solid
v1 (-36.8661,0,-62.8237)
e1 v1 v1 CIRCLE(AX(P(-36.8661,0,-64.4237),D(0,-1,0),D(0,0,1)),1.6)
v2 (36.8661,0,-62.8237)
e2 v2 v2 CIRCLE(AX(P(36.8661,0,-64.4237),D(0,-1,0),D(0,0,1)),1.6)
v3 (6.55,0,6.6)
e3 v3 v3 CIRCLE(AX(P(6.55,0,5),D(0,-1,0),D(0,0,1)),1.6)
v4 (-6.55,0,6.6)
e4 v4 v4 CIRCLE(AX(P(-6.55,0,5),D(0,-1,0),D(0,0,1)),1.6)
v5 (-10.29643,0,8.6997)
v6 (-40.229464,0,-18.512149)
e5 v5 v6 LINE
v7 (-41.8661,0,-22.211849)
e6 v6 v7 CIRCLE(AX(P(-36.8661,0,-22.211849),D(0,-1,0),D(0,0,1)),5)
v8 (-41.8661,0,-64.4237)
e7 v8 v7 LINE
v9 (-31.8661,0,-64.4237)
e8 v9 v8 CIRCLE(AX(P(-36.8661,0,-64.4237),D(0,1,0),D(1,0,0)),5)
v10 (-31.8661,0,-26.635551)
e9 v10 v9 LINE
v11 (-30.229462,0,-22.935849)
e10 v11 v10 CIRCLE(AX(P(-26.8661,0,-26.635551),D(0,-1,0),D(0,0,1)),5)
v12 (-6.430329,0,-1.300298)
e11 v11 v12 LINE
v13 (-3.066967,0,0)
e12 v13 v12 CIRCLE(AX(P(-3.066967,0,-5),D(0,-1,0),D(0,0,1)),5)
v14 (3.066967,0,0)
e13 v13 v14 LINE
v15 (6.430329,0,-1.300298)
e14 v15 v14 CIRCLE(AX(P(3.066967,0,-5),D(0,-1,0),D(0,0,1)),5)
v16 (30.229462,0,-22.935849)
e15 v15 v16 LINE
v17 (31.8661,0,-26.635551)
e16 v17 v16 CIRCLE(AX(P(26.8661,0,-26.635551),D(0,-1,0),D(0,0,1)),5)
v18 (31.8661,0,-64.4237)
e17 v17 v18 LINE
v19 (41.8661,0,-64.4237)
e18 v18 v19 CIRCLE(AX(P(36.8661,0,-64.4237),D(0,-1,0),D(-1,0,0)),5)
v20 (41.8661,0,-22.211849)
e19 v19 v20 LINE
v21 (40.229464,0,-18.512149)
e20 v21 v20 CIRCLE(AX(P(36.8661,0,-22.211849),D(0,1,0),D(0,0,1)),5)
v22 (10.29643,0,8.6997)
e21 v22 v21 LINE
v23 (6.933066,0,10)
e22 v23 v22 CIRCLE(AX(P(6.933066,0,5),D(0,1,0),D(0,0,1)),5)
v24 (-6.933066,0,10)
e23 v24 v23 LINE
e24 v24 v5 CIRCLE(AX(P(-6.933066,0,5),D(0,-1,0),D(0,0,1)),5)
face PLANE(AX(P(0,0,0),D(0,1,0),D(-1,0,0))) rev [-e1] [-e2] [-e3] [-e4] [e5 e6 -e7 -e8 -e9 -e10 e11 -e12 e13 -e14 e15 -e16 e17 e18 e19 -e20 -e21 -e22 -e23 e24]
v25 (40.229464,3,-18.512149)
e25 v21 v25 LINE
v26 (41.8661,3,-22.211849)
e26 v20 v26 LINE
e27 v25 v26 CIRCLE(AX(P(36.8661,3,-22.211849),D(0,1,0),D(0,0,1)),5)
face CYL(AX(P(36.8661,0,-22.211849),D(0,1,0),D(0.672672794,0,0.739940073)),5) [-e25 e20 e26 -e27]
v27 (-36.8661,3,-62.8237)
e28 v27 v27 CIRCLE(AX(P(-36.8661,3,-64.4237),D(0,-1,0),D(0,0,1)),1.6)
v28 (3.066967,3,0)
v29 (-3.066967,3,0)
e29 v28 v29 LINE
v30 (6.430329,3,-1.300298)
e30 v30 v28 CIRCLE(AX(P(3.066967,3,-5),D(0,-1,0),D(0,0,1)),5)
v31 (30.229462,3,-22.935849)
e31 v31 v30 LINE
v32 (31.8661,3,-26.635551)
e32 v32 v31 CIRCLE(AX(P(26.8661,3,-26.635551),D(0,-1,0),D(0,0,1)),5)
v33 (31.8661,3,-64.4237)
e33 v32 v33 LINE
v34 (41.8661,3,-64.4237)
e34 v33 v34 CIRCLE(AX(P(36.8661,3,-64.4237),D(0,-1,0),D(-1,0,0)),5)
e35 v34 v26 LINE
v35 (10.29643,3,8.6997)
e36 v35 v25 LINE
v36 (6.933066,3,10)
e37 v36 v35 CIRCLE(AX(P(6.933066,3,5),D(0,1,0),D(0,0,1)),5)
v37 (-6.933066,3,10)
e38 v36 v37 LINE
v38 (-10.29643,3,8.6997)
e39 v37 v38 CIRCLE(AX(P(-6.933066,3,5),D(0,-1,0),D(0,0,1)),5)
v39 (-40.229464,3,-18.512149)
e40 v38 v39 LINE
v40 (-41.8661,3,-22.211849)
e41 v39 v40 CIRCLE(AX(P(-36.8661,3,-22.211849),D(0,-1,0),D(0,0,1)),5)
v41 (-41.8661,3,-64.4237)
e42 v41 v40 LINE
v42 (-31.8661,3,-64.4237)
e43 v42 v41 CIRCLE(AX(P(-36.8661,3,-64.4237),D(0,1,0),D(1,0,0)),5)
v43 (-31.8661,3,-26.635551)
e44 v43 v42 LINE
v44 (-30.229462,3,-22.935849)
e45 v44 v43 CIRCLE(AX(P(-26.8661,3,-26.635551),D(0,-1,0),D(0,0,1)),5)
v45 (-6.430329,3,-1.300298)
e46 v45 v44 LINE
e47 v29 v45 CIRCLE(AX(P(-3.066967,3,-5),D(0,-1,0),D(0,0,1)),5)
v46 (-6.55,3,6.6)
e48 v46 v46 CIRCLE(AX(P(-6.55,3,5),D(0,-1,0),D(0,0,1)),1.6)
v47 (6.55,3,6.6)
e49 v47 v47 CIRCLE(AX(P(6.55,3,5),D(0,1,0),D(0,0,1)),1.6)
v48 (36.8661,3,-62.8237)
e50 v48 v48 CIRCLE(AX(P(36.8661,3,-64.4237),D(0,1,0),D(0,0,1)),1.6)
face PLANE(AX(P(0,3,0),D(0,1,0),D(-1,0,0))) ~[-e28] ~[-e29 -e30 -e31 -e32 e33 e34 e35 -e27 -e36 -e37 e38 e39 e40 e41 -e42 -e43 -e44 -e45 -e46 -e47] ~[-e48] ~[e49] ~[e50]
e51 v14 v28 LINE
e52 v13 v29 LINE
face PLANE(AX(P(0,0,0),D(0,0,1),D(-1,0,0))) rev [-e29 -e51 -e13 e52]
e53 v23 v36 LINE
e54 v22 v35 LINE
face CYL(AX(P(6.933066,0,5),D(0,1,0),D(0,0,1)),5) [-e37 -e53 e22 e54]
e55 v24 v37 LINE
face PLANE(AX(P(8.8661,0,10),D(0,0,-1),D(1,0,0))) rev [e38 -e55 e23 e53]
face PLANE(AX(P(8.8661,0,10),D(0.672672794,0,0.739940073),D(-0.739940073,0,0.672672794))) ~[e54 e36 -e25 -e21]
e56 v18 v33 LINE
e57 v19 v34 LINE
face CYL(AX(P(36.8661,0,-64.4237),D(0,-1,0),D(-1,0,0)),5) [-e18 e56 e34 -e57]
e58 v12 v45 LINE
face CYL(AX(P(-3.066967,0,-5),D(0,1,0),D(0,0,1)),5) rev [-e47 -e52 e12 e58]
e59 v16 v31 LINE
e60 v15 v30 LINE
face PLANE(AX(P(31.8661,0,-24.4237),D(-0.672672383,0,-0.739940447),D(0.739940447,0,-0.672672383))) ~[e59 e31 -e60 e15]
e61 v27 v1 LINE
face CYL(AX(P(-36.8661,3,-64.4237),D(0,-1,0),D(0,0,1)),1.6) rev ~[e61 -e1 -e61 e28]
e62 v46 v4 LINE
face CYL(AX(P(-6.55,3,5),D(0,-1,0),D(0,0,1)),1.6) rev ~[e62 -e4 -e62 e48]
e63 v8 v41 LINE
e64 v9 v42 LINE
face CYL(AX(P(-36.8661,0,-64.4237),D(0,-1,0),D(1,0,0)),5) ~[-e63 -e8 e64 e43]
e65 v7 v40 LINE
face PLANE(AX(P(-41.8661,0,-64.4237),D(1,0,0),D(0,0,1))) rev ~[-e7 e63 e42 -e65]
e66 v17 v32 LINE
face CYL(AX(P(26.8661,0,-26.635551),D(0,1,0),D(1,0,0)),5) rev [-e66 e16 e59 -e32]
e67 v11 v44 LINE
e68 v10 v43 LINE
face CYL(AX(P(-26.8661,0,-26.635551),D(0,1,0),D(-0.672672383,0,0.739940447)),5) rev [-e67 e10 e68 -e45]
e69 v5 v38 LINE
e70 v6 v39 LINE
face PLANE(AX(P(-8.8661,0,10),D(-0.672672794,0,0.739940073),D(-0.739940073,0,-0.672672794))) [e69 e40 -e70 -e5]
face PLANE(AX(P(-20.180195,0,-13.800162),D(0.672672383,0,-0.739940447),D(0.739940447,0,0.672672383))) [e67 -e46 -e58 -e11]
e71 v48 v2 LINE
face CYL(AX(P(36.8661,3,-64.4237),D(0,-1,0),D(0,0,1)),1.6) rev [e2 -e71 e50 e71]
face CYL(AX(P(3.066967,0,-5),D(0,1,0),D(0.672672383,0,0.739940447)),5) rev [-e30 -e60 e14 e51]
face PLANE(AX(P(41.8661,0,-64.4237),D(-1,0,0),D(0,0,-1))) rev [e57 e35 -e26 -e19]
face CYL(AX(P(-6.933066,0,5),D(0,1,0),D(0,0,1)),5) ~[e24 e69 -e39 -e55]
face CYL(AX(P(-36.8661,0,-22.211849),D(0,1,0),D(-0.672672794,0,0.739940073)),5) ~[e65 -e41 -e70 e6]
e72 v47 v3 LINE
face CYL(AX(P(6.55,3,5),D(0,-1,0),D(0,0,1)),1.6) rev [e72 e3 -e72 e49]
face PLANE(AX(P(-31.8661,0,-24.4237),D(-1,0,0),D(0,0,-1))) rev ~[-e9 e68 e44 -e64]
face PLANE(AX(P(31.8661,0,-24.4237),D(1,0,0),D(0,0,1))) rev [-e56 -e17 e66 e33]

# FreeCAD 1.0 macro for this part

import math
import FreeCAD as App
import Part
import Sketcher

V = App.Vector
Q = App.Units.Quantity


def edges_at(feature, points):
    """Names of the edges that pass closest to the given points."""
    edges = feature.Shape.Edges
    near = lambda p: min(range(len(edges)), key=lambda i: edges[i].distToShape(Part.Vertex(*p))[0])
    return sorted({f"Edge{near(p) + 1}" for p in points})

doc = App.newDocument("Part")
params = doc.addObject("Spreadsheet::Sheet", "Params")
for row, (alias, value) in enumerate([
    ("sketch1_radius", "5 mm"),
    ("sketch1_width", "5 mm"),
    ("sketch1_height", "10 mm"),
    ("sketch1_height2", "40 mm"),
    ("pad1_length", "3 mm"),
    ("sketch2_diameter", "3.2 mm"),
    ("hole_diameter", "3.2 mm"),
    ("fillet_radius", "5 mm"),
], start=1):
    params.set(f"A{row}", alias)
    params.set(f"B{row}", "=" + value)
    params.setAlias(f"B{row}", alias)

body = doc.addObject("PartDesign::Body", "Body")

sketch1 = doc.addObject("Sketcher::SketchObject", "Sketch")
body.addObject(sketch1)
sketch1.AttachmentSupport = (doc.XZ_Plane, [""])
sketch1.MapMode = "FlatFace"
sketch1.addGeometry(Part.LineSegment(V(0, 10, 0), V(0, 0, 0)), False)
sketch1.addGeometry(Part.LineSegment(V(0, 0, 0), V(-5, 0, 0)), False)
sketch1.addGeometry(Part.LineSegment(V(-5, 0, 0), V(-32, -24, 0)), False)
sketch1.addGeometry(Part.LineSegment(V(-32, -24, 0), V(-32, -64, 0)), False)
sketch1.addGeometry(Part.ArcOfCircle(Part.Circle(V(-37, -64, 0), V(0, 0, 1), 5), math.radians(180), math.radians(360)), False)
sketch1.addGeometry(Part.LineSegment(V(-42, -64, 0), V(-42, -20, 0)), False)
sketch1.addGeometry(Part.LineSegment(V(-42, -20, 0), V(-9, 10, 0)), False)
sketch1.addGeometry(Part.LineSegment(V(-9, 10, 0), V(0, 10, 0)), False)
sketch1.addConstraint(Sketcher.Constraint("Coincident", 0, 2, 1, 1))
sketch1.addConstraint(Sketcher.Constraint("Coincident", 1, 2, 2, 1))
sketch1.addConstraint(Sketcher.Constraint("Coincident", 2, 2, 3, 1))
sketch1.addConstraint(Sketcher.Constraint("Tangent", 3, 2, 4, 2))
sketch1.addConstraint(Sketcher.Constraint("Tangent", 4, 1, 5, 1))
sketch1.addConstraint(Sketcher.Constraint("Coincident", 5, 2, 6, 1))
sketch1.addConstraint(Sketcher.Constraint("Coincident", 6, 2, 7, 1))
sketch1.addConstraint(Sketcher.Constraint("Coincident", 7, 2, 0, 1))
sketch1.addConstraint(Sketcher.Constraint("Vertical", 0))
sketch1.addConstraint(Sketcher.Constraint("Horizontal", 1))
sketch1.addConstraint(Sketcher.Constraint("Vertical", 3))
sketch1.addConstraint(Sketcher.Constraint("Vertical", 5))
sketch1.addConstraint(Sketcher.Constraint("Horizontal", 7))
sketch1.addConstraint(Sketcher.Constraint("Coincident", 0, 2, -1, 1))
sketch1.addConstraint(Sketcher.Constraint("Parallel", 2, 6))
sketch1.addConstraint(Sketcher.Constraint("Radius", 4, Q("5 mm")))
sketch1.addConstraint(Sketcher.Constraint("DistanceX", 1, 2, 1, 1, Q("5 mm")))
sketch1.addConstraint(Sketcher.Constraint("DistanceY", 0, 2, 0, 1, Q("10 mm")))
sketch1.addConstraint(Sketcher.Constraint("DistanceY", 3, 2, 3, 1, Q("40 mm")))
sketch1.addConstraint(Sketcher.Constraint("DistanceX", 5, 2, 6, 2, Q("33 mm")))
sketch1.addConstraint(Sketcher.Constraint("DistanceY", 5, 2, 6, 2, Q("30 mm")))
sketch1.addConstraint(Sketcher.Constraint("DistanceX", 7, 1, 7, 2, Q("8.866 mm")))
sketch1.setExpression("Constraints[15]", "Params.sketch1_radius")
sketch1.setExpression("Constraints[16]", "Params.sketch1_width")
sketch1.setExpression("Constraints[17]", "Params.sketch1_height")
sketch1.setExpression("Constraints[18]", "Params.sketch1_height2")
pad1 = doc.addObject("PartDesign::Pad", "Pad")
body.addObject(pad1)
pad1.Profile = sketch1
pad1.setExpression("Length", "Params.pad1_length")
pad1.Reversed = True

sketch2 = doc.addObject("Sketcher::SketchObject", "Sketch001")
body.addObject(sketch2)
sketch2.AttachmentSupport = (doc.XZ_Plane, [""])
sketch2.MapMode = "FlatFace"
sketch2.AttachmentOffset = App.Placement(V(0, 0, -3), App.Rotation())
sketch2.addGeometry(Part.Circle(V(-6.5, 5, 0), V(0, 0, 1), 1.6), False)
sketch2.addGeometry(Part.Circle(V(-36.9, -64.4, 0), V(0, 0, 1), 1.6), False)
sketch2.addConstraint(Sketcher.Constraint("Equal", 0, 1))
sketch2.addConstraint(Sketcher.Constraint("Diameter", 0, Q("3.2 mm")))
sketch2.addConstraint(Sketcher.Constraint("DistanceY", -1, 1, 0, 3, Q("5 mm")))
sketch2.addConstraint(Sketcher.Constraint("DistanceX", 0, 3, -1, 1, Q("6.55 mm")))
sketch2.addConstraint(Sketcher.Constraint("DistanceX", 1, 3, -1, 1, Q("36.866 mm")))
sketch2.addConstraint(Sketcher.Constraint("DistanceY", 1, 3, -1, 1, Q("64.4237 mm")))
sketch2.setExpression("Constraints[1]", "Params.sketch2_diameter")
doc.recompute()
hole = doc.addObject("PartDesign::Hole", "Hole")
body.addObject(hole)
hole.Profile = sketch2
hole.ThreadType = "None"
hole.setExpression("Diameter", "Params.hole_diameter")
hole.DepthType = "ThroughAll"
hole.Reversed = True
doc.recompute()

fillet = doc.addObject("PartDesign::Fillet", "Fillet")
body.addObject(fillet)
fillet.Base = (hole, edges_at(hole, [
    (-8.866, 1.5, 10),
    (-41.866, 1.5, -20),
    (-31.866, 1.5, -24.424),
    (-5, 1.5, 0),
]))
fillet.setExpression("Radius", "Params.fillet_radius")
doc.recompute()

mirrored = doc.addObject("PartDesign::Mirrored", "Mirrored")
body.addObject(mirrored)
mirrored.Originals = [pad1, hole, fillet]
mirrored.MirrorPlane = (doc.YZ_Plane, [""])
body.Tip = mirrored

doc.recompute()
